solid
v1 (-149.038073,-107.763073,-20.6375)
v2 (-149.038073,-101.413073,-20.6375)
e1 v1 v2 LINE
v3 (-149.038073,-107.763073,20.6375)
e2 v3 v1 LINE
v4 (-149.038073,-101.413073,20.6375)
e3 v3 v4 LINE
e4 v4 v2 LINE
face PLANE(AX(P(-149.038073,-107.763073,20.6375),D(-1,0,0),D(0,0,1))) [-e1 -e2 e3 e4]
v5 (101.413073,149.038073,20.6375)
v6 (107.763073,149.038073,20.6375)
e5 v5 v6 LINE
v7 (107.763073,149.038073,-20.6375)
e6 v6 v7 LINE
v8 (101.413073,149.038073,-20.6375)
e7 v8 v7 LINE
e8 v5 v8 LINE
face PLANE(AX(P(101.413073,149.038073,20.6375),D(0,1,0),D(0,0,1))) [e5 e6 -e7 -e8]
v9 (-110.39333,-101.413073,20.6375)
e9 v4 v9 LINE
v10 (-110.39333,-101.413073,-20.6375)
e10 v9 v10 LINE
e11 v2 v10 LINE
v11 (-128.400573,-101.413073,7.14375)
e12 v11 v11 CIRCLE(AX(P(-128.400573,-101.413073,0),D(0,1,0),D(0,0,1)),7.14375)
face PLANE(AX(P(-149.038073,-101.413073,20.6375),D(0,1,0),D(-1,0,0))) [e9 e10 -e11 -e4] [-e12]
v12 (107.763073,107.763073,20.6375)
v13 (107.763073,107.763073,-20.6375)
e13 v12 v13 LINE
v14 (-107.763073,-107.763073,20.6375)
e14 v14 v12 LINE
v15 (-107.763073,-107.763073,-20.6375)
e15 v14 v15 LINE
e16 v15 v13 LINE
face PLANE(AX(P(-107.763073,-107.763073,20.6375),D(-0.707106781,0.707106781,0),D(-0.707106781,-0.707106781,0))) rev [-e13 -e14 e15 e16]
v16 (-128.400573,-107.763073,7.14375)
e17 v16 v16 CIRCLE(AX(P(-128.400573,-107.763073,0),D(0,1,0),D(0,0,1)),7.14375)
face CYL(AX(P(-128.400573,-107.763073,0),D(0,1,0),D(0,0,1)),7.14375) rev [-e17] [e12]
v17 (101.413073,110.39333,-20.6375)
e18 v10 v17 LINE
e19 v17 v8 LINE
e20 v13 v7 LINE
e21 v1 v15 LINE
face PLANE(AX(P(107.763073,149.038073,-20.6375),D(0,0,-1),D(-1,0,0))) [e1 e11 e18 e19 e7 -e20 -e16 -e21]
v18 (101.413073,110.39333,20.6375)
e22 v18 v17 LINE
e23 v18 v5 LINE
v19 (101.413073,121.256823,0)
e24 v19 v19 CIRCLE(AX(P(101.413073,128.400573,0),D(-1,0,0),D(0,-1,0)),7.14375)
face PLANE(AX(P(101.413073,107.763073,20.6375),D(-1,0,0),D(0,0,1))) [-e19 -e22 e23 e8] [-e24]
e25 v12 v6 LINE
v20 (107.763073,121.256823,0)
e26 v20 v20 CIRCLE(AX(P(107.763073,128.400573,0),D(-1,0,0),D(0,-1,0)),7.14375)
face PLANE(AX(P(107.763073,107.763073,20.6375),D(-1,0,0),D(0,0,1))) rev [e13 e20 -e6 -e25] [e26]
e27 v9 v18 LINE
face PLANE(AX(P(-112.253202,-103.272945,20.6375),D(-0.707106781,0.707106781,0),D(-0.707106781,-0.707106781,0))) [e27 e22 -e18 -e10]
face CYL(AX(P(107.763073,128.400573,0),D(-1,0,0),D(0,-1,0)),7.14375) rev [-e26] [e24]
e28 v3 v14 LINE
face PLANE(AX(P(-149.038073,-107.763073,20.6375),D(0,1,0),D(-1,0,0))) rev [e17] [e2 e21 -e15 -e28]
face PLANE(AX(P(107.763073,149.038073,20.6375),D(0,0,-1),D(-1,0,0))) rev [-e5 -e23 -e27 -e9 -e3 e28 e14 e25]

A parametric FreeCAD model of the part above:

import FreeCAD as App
import Part
import Sketcher

V = App.Vector
Q = App.Units.Quantity


def add_polygon(sketch, points):
    """Adds a closed chain of lines whose ends are joined by coincident constraints."""
    first, n = sketch.GeometryCount, len(points)
    for a, b in zip(points, points[1:] + points[:1]):
        sketch.addGeometry(Part.LineSegment(App.Vector(*a, 0), App.Vector(*b, 0)), False)
    for i in range(n):
        sketch.addConstraint(Sketcher.Constraint("Coincident", first + i, 2, first + (i + 1) % n, 1))

doc = App.newDocument("Part")
body = doc.addObject("PartDesign::Body", "Body")

# Sketch on XY plane
sketch1 = body.newObject("Sketcher::SketchObject", "Sketch")
sketch1.AttachmentSupport = (doc.getObject("XY_Plane"), [""])
sketch1.MapMode = "FlatFace"
add_polygon(sketch1, [(-149, -108), (-108, -108), (108, 108), (108, 149), (101, 149), (101, 110), (-110, -101), (-149, -101)])  # lines 0-7
sketch1.addConstraint([
    Sketcher.Constraint("Horizontal", 0),
    Sketcher.Constraint("Vertical", 2),
    Sketcher.Constraint("Horizontal", 3),
    Sketcher.Constraint("Vertical", 4),
    Sketcher.Constraint("Horizontal", 6),
    Sketcher.Constraint("Vertical", 7),
    Sketcher.Constraint("Symmetric", 0, 2, 1, 2, -1, 1),
    Sketcher.Constraint("Parallel", 1, 5),
    Sketcher.Constraint("Equal", 0, 2),
    Sketcher.Constraint("Equal", 6, 4),
    Sketcher.Constraint("Equal", 3, 7),
    Sketcher.Constraint("Distance", 1, Q("12 in")),
    Sketcher.Constraint("DistanceX", 3, 2, 3, 1, Q("0.25 in")),
    Sketcher.Constraint("DistanceX", 0, 1, 0, 2, Q("1.625 in")),
    Sketcher.Constraint("DistanceX", 6, 2, 6, 1, Q("38.644744 mm")),
])
pad1 = body.newObject("PartDesign::Pad", "Pad")
pad1.Profile = sketch1
pad1.Length = Q("1.625 in")
pad1.Midplane = True

# Sketch on XZ plane
sketch2 = body.newObject("Sketcher::SketchObject", "Sketch001")
sketch2.AttachmentSupport = (doc.getObject("XZ_Plane"), [""])
sketch2.MapMode = "FlatFace"
sketch2.AttachmentOffset = App.Placement(V(0, 0, 101.413073), App.Rotation())
sketch2.addGeometry(Part.Circle(V(-128, 0, 0), V(0, 0, 1), 7), False)
sketch2.addConstraint([
    Sketcher.Constraint("PointOnObject", 0, 3, -1),
    Sketcher.Constraint("Diameter", 0, Q("0.5625 in")),
    Sketcher.Constraint("DistanceX", 0, 3, -1, 1, Q("128.400573 mm")),
])
pocket1 = body.newObject("PartDesign::Pocket", "Pocket")
pocket1.Profile = sketch2
pocket1.Type = "ThroughAll"
pocket1.Reversed = True

# Sketch on YZ plane
sketch3 = body.newObject("Sketcher::SketchObject", "Sketch002")
sketch3.AttachmentSupport = (doc.getObject("YZ_Plane"), [""])
sketch3.MapMode = "FlatFace"
sketch3.AttachmentOffset = App.Placement(V(0, 0, 101.413073), App.Rotation())
sketch3.addGeometry(Part.Circle(V(128, 0, 0), V(0, 0, 1), 7), False)
sketch3.addConstraint([
    Sketcher.Constraint("PointOnObject", 0, 3, -1),
    Sketcher.Constraint("Diameter", 0, Q("0.5625 in")),
    Sketcher.Constraint("DistanceX", -1, 1, 0, 3, Q("128.400573 mm")),
])
pocket2 = body.newObject("PartDesign::Pocket", "Pocket001")
pocket2.Profile = sketch3
pocket2.Type = "ThroughAll"
pocket2.Reversed = True

doc.recompute()
